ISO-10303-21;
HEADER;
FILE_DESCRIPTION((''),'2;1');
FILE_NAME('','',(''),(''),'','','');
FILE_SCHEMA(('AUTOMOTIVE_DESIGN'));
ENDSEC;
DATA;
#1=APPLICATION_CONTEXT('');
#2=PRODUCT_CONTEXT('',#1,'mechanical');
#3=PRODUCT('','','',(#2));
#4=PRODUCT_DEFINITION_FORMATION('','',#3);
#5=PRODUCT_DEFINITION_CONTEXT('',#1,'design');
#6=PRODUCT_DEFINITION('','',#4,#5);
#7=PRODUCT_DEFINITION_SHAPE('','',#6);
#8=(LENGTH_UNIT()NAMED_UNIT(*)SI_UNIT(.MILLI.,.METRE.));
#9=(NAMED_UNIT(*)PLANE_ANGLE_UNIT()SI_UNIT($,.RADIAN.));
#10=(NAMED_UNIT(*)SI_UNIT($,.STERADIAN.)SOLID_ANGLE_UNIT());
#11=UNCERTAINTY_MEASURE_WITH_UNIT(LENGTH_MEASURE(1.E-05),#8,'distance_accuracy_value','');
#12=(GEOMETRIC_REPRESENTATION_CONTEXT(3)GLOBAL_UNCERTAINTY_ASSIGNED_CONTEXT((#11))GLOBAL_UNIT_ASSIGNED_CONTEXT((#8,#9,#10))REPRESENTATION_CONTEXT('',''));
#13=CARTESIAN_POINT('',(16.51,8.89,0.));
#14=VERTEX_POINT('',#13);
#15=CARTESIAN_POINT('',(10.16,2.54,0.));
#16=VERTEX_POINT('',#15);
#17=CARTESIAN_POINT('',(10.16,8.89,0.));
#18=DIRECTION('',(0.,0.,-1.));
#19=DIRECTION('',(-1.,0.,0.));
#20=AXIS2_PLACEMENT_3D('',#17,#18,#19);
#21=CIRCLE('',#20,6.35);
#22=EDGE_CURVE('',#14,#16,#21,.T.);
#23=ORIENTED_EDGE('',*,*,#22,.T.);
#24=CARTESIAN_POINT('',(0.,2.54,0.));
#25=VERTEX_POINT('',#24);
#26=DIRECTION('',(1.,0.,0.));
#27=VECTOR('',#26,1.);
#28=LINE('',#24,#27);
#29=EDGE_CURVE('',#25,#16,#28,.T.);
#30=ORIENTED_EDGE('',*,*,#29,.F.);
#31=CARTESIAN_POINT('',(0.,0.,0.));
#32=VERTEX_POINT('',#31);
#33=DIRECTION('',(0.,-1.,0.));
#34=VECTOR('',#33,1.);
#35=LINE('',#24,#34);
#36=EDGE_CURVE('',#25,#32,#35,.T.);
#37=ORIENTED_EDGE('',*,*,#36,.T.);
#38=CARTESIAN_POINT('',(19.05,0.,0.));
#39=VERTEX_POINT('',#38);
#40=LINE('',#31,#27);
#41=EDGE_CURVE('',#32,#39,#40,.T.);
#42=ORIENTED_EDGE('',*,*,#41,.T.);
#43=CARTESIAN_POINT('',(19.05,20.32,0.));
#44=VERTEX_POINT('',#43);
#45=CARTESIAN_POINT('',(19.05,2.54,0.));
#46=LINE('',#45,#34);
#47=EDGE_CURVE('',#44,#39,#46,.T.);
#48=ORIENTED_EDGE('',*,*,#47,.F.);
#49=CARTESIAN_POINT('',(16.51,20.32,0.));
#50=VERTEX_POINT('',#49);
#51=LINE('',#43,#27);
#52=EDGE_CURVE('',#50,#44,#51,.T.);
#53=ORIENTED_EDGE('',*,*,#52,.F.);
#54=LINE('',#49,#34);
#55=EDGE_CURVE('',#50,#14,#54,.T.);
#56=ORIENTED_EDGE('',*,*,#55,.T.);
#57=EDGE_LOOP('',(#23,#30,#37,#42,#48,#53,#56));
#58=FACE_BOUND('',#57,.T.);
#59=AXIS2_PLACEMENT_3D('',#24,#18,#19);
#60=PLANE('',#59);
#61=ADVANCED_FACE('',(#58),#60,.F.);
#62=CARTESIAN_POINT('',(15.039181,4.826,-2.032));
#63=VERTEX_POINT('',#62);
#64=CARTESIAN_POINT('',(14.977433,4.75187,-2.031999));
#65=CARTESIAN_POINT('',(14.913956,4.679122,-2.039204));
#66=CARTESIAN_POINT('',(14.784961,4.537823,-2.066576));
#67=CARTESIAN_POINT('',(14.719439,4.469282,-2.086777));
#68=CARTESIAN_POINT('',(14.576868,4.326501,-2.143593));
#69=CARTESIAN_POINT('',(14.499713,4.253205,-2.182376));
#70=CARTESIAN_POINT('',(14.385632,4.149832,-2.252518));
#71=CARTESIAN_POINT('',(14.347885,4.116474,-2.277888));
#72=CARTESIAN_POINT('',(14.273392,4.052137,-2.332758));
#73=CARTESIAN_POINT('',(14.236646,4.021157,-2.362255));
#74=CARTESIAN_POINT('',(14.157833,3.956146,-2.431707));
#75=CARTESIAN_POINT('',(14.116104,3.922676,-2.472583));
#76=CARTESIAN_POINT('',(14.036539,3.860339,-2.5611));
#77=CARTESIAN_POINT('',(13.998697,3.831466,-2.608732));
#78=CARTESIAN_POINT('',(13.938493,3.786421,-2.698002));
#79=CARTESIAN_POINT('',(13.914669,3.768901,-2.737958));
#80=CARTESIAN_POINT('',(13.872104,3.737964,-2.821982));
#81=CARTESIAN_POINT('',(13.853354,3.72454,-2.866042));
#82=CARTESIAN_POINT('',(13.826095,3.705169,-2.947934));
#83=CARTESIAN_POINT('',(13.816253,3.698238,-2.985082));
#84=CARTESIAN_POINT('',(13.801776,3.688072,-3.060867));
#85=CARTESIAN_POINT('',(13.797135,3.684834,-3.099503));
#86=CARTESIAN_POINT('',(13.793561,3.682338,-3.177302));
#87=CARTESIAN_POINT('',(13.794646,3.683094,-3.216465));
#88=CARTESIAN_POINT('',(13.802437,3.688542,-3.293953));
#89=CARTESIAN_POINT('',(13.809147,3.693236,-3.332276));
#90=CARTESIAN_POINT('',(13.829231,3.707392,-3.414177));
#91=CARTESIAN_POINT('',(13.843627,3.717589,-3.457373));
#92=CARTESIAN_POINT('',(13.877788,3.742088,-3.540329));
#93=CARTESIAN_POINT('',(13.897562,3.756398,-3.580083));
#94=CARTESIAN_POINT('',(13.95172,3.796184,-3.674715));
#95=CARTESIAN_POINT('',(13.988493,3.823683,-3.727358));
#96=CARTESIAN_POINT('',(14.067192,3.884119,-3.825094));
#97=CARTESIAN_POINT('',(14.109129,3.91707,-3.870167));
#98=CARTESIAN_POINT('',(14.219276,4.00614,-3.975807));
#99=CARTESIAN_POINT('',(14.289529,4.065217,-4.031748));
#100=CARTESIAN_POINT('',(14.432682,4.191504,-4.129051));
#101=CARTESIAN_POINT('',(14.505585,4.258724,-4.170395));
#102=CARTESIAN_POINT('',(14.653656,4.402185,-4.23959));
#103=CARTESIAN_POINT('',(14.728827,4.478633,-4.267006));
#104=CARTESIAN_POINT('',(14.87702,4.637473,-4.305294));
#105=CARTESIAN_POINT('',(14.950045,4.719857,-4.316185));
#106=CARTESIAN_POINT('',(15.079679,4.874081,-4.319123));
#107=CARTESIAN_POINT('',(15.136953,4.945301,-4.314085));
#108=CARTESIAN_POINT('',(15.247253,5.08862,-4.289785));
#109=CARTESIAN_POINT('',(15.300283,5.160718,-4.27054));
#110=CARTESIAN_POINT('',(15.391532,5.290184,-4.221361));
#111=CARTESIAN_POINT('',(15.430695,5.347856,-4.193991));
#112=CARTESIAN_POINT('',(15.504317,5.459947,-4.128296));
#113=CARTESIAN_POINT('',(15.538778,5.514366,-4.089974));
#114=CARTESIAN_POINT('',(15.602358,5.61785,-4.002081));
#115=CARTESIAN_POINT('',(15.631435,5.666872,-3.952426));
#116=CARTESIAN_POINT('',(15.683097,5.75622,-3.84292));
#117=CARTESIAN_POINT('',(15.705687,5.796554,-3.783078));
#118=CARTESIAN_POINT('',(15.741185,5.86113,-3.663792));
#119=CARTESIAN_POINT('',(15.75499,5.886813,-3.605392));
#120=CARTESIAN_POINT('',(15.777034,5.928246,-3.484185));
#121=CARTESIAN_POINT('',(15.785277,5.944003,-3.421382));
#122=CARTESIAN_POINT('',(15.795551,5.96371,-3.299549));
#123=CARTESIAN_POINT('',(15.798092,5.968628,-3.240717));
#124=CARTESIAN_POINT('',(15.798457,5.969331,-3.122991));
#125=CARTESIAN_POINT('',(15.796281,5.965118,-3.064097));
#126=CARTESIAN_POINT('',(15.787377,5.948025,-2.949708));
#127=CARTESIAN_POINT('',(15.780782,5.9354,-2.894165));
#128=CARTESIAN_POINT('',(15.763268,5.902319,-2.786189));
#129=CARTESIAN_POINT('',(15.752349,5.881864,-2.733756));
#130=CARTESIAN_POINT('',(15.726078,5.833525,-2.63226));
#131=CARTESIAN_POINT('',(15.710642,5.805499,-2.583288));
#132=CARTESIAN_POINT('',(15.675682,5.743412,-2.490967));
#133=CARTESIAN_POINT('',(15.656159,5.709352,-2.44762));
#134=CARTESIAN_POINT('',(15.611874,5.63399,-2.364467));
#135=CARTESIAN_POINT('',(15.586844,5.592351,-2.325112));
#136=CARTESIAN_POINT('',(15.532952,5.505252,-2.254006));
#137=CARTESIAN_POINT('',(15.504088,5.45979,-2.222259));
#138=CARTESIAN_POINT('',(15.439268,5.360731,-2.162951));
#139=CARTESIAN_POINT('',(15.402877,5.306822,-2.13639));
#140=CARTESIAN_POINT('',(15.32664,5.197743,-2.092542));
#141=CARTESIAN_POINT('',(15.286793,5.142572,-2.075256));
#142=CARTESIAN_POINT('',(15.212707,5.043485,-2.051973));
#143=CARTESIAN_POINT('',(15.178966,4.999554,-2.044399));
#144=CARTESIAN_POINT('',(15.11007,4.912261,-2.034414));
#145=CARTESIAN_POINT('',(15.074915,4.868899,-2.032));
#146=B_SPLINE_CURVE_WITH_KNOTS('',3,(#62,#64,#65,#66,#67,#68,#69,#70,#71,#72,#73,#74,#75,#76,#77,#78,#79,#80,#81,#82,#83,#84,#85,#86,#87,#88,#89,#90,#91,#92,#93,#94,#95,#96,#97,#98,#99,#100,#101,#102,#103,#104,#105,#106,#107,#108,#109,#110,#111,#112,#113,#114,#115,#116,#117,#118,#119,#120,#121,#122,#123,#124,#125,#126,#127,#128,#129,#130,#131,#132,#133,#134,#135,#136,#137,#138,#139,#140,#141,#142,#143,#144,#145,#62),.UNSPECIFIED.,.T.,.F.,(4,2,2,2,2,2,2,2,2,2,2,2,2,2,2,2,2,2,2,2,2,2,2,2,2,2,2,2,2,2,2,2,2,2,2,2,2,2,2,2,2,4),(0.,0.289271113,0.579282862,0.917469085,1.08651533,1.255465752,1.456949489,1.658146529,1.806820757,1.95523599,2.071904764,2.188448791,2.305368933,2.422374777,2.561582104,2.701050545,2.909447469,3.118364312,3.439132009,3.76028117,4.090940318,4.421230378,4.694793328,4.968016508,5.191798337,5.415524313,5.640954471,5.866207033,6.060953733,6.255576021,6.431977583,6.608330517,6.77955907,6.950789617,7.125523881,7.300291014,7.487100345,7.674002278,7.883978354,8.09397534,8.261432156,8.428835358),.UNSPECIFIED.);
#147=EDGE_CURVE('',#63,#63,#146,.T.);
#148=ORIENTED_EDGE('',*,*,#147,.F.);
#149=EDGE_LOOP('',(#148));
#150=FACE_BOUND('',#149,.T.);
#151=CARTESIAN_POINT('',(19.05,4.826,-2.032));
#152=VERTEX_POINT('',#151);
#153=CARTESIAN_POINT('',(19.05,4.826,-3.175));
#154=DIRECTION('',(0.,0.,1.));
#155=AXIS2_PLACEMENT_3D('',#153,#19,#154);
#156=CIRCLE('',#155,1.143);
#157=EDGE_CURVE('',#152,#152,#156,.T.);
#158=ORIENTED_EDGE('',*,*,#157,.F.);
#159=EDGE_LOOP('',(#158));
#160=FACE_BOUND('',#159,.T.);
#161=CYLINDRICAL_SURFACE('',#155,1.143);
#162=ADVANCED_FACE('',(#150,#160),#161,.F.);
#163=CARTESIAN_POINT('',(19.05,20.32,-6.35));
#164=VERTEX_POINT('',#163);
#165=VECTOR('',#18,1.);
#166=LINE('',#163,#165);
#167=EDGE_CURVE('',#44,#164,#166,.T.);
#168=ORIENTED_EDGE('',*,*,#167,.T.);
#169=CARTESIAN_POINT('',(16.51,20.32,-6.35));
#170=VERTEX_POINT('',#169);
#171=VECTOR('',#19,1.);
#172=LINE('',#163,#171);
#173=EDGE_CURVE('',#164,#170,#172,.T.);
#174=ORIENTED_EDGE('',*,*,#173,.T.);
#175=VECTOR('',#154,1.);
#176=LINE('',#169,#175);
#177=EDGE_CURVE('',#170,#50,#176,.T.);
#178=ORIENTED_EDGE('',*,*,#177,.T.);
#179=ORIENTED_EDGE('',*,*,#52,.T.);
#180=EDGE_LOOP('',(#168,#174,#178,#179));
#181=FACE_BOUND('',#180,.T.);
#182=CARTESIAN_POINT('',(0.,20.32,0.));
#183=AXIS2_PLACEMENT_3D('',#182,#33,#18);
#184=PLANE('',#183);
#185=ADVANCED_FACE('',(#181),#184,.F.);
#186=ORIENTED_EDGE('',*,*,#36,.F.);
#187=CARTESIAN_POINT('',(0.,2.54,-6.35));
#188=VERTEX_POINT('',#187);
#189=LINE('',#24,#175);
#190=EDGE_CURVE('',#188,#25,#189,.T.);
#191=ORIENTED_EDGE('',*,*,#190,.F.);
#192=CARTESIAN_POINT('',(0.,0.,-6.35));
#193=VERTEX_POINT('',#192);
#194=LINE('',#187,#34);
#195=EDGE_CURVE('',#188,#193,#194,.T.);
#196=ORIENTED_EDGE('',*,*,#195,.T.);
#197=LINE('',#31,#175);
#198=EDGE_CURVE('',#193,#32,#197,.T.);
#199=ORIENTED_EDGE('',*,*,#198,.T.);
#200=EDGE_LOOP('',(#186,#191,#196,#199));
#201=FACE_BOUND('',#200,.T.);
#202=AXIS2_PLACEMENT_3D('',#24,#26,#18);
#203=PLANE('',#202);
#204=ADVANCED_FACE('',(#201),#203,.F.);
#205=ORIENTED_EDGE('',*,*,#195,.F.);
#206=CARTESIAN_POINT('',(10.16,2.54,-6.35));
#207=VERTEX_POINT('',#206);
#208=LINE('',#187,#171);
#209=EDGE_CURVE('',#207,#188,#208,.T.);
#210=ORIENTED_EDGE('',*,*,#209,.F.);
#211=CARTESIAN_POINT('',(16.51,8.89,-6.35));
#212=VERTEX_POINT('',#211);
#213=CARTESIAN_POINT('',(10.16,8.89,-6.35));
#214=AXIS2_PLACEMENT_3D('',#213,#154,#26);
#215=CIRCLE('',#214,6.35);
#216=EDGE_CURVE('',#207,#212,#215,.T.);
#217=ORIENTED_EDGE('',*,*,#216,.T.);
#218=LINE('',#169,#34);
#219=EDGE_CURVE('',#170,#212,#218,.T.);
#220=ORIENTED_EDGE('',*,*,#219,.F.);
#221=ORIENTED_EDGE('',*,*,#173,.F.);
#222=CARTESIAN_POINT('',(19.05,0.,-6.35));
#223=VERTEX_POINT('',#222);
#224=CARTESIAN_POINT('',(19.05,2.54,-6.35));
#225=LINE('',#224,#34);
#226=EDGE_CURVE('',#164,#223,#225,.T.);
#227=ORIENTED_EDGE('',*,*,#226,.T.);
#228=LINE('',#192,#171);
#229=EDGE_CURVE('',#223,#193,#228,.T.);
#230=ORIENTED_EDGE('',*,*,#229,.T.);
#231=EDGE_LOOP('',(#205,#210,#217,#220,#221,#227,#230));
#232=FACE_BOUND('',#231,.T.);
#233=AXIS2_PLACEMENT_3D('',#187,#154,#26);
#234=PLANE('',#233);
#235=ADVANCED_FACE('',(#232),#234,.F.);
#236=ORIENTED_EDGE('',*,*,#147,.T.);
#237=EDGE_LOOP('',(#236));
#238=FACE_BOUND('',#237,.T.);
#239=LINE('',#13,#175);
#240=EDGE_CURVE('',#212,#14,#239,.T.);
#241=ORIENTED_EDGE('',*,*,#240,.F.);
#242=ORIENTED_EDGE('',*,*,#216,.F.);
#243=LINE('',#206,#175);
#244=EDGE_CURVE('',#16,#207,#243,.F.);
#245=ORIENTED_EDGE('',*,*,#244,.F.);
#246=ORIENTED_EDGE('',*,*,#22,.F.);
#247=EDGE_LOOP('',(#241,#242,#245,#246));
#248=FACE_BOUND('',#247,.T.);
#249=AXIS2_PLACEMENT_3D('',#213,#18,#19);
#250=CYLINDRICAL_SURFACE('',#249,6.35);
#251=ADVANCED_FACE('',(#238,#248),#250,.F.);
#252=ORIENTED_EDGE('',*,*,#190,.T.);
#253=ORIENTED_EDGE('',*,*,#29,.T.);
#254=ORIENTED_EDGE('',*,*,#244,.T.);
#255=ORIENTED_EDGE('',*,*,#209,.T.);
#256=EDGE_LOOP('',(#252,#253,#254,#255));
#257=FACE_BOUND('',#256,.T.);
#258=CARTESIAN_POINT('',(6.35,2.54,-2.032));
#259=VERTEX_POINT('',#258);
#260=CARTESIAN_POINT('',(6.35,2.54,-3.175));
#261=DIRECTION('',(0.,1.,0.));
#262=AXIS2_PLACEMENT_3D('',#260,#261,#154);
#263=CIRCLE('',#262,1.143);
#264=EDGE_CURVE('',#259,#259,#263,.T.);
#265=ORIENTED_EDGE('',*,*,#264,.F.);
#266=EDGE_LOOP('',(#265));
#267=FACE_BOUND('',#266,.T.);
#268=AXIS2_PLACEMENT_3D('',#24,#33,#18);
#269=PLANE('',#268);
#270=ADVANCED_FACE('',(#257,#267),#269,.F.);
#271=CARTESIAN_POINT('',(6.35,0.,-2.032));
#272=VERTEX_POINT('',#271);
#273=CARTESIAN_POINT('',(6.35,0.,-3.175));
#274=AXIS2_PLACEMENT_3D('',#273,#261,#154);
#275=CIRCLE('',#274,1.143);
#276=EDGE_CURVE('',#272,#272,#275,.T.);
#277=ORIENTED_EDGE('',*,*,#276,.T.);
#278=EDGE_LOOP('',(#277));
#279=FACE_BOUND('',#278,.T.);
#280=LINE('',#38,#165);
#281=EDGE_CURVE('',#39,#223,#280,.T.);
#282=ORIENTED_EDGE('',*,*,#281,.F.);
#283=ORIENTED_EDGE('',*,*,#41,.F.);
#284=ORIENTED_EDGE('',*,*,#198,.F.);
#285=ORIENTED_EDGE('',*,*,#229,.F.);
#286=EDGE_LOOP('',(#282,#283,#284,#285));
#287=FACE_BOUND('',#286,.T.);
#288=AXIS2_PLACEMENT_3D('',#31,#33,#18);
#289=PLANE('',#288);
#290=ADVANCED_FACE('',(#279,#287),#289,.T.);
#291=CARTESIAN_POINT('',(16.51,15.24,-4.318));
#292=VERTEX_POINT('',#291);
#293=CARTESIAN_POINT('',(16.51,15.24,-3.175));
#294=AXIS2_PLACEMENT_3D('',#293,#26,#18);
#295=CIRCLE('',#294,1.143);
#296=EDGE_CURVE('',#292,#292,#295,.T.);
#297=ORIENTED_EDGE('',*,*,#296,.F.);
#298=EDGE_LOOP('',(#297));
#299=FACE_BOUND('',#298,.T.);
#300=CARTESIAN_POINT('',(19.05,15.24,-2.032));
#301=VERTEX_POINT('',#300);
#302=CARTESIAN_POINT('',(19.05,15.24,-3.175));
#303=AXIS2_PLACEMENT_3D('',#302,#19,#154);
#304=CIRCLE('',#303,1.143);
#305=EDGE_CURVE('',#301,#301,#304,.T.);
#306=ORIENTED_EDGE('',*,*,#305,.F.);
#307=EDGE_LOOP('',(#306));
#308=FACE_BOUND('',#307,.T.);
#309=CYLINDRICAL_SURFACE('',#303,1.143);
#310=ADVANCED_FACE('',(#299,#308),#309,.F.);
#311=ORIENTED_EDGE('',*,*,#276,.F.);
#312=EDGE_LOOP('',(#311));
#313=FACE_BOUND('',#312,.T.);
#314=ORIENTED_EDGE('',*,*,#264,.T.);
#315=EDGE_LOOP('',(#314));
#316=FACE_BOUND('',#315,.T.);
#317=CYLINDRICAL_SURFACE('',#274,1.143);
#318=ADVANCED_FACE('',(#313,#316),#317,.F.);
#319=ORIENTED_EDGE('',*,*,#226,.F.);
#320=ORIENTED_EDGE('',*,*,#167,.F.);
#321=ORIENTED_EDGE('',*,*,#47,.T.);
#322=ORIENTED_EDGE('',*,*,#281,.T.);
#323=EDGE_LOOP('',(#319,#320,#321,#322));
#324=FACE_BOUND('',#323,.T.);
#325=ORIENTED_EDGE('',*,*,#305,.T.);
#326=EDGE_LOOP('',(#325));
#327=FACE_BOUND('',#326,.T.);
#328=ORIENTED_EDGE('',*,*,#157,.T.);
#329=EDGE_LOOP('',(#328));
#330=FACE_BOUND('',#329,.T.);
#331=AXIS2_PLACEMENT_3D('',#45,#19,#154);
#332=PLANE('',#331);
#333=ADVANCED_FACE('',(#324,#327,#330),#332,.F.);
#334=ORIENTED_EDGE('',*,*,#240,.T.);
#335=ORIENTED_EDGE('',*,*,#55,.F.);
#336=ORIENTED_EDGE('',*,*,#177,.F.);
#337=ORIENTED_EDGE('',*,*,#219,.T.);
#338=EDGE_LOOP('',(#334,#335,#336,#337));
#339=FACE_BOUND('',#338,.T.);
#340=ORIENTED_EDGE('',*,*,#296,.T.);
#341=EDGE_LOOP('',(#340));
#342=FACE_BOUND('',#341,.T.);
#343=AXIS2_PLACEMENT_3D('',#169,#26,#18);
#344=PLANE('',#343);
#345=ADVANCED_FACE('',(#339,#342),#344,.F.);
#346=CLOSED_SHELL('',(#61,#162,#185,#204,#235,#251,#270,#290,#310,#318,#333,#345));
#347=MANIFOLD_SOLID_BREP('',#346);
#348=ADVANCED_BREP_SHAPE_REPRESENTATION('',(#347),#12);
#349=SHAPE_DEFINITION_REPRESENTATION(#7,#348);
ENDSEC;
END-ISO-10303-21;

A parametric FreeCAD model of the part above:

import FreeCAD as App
import Part
import Sketcher
Q = App.Units.Quantity


def edges_at(feature, points):
    """Names of the edges that pass closest to the given points."""
    edges = feature.Shape.Edges
    near = lambda p: min(range(len(edges)), key=lambda i: edges[i].distToShape(Part.Vertex(*p))[0])
    return sorted({f"Edge{near(p) + 1}" for p in points})


def add_polygon(sketch, points):
    """Adds a closed chain of lines whose ends are joined by coincident constraints."""
    first, n = sketch.GeometryCount, len(points)
    for a, b in zip(points, points[1:] + points[:1]):
        sketch.addGeometry(Part.LineSegment(App.Vector(*a, 0), App.Vector(*b, 0)), False)
    for i in range(n):
        sketch.addConstraint(Sketcher.Constraint("Coincident", first + i, 2, first + (i + 1) % n, 1))

doc = App.newDocument("Part")
body = doc.addObject("PartDesign::Body", "Body")

sketch1 = body.newObject("Sketcher::SketchObject", "Sketch")
sketch1.AttachmentSupport = (doc.getObject("XZ_Plane"), [""])
sketch1.MapMode = "FlatFace"
add_polygon(sketch1, [(0, -6), (0, 0), (19, 0), (19, -6)])
sketch1.addConstraint([
    Sketcher.Constraint("Vertical", 0),
    Sketcher.Constraint("Horizontal", 1),
    Sketcher.Constraint("Vertical", 2),
    Sketcher.Constraint("Horizontal", 3),
    Sketcher.Constraint("Coincident", 0, 2, -1, 1),
    Sketcher.Constraint("DistanceX", 1, 1, 1, 2, Q("0.75 in")),
    Sketcher.Constraint("DistanceY", 0, 1, 0, 2, Q("0.25 in")),
])
pad1 = body.newObject("PartDesign::Pad", "Pad")
pad1.Profile = sketch1
pad1.Length = Q("0.1 in")
pad1.Reversed = True

sketch2 = body.newObject("Sketcher::SketchObject", "Sketch001")
sketch2.AttachmentSupport = (doc.getObject("XZ_Plane"), [""])
sketch2.MapMode = "FlatFace"
sketch2.AttachmentOffset = App.Placement(App.Vector(0, 0, -0.1 * 25.4), App.Rotation())
add_polygon(sketch2, [(16.5, -6.3), (16.5, 0), (19.1, 0), (19.1, -6.3)])
sketch2.addConstraint([
    Sketcher.Constraint("Vertical", 0),
    Sketcher.Constraint("Horizontal", 1),
    Sketcher.Constraint("Vertical", 2),
    Sketcher.Constraint("Horizontal", 3),
    Sketcher.Constraint("PointOnObject", 0, 2, -1),
    Sketcher.Constraint("DistanceX", 1, 1, 1, 2, Q("0.1 in")),
    Sketcher.Constraint("DistanceY", 0, 1, 0, 2, Q("0.25 in")),
    Sketcher.Constraint("DistanceX", -1, 1, 0, 2, Q("0.65 in")),
])
pad2 = body.newObject("PartDesign::Pad", "Pad001")
pad2.Profile = sketch2
pad2.Length = Q("0.7 in")
pad2.Reversed = True
doc.recompute()

fillet = body.newObject("PartDesign::Fillet", "Fillet")
fillet.Base = (pad2, edges_at(pad2, [(16.51, 2.54, -3.175)]))
fillet.Radius = Q("0.25 in")

sketch3 = body.newObject("Sketcher::SketchObject", "Sketch002")
sketch3.AttachmentSupport = (doc.getObject("XZ_Plane"), [""])
sketch3.MapMode = "FlatFace"
sketch3.AttachmentOffset = App.Placement(App.Vector(0, 0, -0.1 * 25.4), App.Rotation())
sketch3.addGeometry(Part.Circle(App.Vector(6.3, -3.2, 0), App.Vector(0, 0, 1), 1.1), False)
sketch3.addConstraint([
    Sketcher.Constraint("Diameter", 0, Q("0.09 in")),
    Sketcher.Constraint("DistanceX", -1, 1, 0, 3, Q("0.25 in")),
    Sketcher.Constraint("DistanceY", 0, 3, -1, 1, Q("0.125 in")),
])
pocket1 = body.newObject("PartDesign::Pocket", "Pocket")
pocket1.Profile = sketch3
pocket1.Type = "ThroughAll"
pocket1.Reversed = True

sketch4 = body.newObject("Sketcher::SketchObject", "Sketch003")
sketch4.AttachmentSupport = (doc.getObject("YZ_Plane"), [""])
sketch4.MapMode = "FlatFace"
sketch4.AttachmentOffset = App.Placement(App.Vector(0, 0, 0.65 * 25.4), App.Rotation())
sketch4.addGeometry([
    Part.Circle(App.Vector(15.2, -3.2, 0), App.Vector(0, 0, 1), 1.1),
    Part.Circle(App.Vector(4.8, -3.2, 0), App.Vector(0, 0, 1), 1.1),
], False)
sketch4.addConstraint([
    Sketcher.Constraint("Equal", 0, 1),
    Sketcher.Constraint("Horizontal", 0, 3, 1, 3),
    Sketcher.Constraint("Diameter", 0, Q("0.09 in")),
    Sketcher.Constraint("DistanceX", -1, 1, 0, 3, Q("0.6 in")),
    Sketcher.Constraint("DistanceX", -1, 1, 1, 3, Q("0.19 in")),
    Sketcher.Constraint("DistanceY", 0, 3, -1, 1, Q("0.125 in")),
])
pocket2 = body.newObject("PartDesign::Pocket", "Pocket001")
pocket2.Profile = sketch4
pocket2.Type = "ThroughAll"
pocket2.Midplane = True

doc.recompute()
